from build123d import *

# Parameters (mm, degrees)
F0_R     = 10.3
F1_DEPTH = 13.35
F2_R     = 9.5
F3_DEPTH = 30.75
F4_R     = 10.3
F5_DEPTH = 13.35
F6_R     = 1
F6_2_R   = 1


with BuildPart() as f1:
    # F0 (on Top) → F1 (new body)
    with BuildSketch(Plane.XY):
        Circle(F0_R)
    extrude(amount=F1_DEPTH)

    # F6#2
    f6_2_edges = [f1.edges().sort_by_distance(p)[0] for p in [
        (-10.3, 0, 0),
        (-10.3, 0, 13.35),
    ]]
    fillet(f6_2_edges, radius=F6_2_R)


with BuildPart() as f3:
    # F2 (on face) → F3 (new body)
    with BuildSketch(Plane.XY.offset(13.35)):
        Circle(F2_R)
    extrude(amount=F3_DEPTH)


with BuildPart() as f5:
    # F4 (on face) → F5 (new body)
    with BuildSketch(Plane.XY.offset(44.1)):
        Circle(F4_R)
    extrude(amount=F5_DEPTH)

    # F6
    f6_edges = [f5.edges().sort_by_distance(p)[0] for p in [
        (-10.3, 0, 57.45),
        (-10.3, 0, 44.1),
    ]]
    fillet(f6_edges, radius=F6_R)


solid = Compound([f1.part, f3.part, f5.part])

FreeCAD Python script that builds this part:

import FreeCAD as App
import Part
import Sketcher


def edges_at(feature, points):
    """Names of the edges that pass closest to the given points."""
    edges = feature.Shape.Edges
    near = lambda p: min(range(len(edges)), key=lambda i: edges[i].distToShape(Part.Vertex(*p))[0])
    return sorted({f"Edge{near(p) + 1}" for p in points})

doc = App.newDocument("Part")
body = doc.addObject("PartDesign::Body", "Body")

# Sketch on XY plane
sketch1 = doc.addObject("Sketcher::SketchObject", "Sketch")
body.addObject(sketch1)
sketch1.AttachmentSupport = (doc.XY_Plane, [""])
sketch1.MapMode = "FlatFace"
sketch1.addGeometry(Part.Circle(App.Vector(0, 0, 0), App.Vector(0, 0, 1), 10), False)
sketch1.addConstraint([
    Sketcher.Constraint("Coincident", 0, 3, -1, 1),
    Sketcher.Constraint("Diameter", 0, 20.6),
])
pad1 = doc.addObject("PartDesign::Pad", "Pad")
body.addObject(pad1)
pad1.Profile = sketch1
pad1.Length = 13.35
doc.recompute()

fillet = doc.addObject("PartDesign::Fillet", "Fillet")
body.addObject(fillet)
fillet.Base = (pad1, edges_at(pad1, [(-10.3, 0, 0), (-10.3, 0, 13.35)]))
fillet.Radius = 1
body2 = doc.addObject("PartDesign::Body", "Body001")

# Sketch on XY plane
sketch2 = doc.addObject("Sketcher::SketchObject", "Sketch001")
body2.addObject(sketch2)
sketch2.AttachmentSupport = (doc.getObject("XY_Plane001"), [""])
sketch2.MapMode = "FlatFace"
sketch2.AttachmentOffset = App.Placement(App.Vector(0, 0, 13.35), App.Rotation())
sketch2.addGeometry(Part.Circle(App.Vector(0, 0, 0), App.Vector(0, 0, 1), 10), False)
sketch2.addConstraint([
    Sketcher.Constraint("Coincident", 0, 3, -1, 1),
    Sketcher.Constraint("Diameter", 0, 19.0),
])
pad2 = doc.addObject("PartDesign::Pad", "Pad001")
body2.addObject(pad2)
pad2.Profile = sketch2
pad2.Length = 30.75
body3 = doc.addObject("PartDesign::Body", "Body002")

# Sketch on XY plane
sketch3 = doc.addObject("Sketcher::SketchObject", "Sketch002")
body3.addObject(sketch3)
sketch3.AttachmentSupport = (doc.getObject("XY_Plane002"), [""])
sketch3.MapMode = "FlatFace"
sketch3.AttachmentOffset = App.Placement(App.Vector(0, 0, 44.1), App.Rotation())
sketch3.addGeometry(Part.Circle(App.Vector(0, 0, 0), App.Vector(0, 0, 1), 10), False)
sketch3.addConstraint([
    Sketcher.Constraint("Coincident", 0, 3, -1, 1),
    Sketcher.Constraint("Diameter", 0, 20.6),
])
pad3 = doc.addObject("PartDesign::Pad", "Pad002")
body3.addObject(pad3)
pad3.Profile = sketch3
pad3.Length = 13.35
doc.recompute()

fillet2 = doc.addObject("PartDesign::Fillet", "Fillet001")
body3.addObject(fillet2)
fillet2.Base = (pad3, edges_at(pad3, [(-10.3, 0, 57.45), (-10.3, 0, 44.1)]))
fillet2.Radius = 1

doc.recompute()
